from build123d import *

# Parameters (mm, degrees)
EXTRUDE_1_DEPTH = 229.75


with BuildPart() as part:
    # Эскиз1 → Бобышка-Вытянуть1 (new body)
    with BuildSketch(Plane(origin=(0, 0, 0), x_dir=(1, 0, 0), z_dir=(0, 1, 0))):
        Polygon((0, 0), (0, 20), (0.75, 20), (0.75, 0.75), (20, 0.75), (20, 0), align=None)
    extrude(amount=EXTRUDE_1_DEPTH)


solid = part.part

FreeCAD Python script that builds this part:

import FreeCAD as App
import Part
import Sketcher
Q = App.Units.Quantity


def add_polygon(sketch, points):
    """Adds a closed chain of lines whose ends are joined by coincident constraints."""
    first, n = sketch.GeometryCount, len(points)
    for a, b in zip(points, points[1:] + points[:1]):
        sketch.addGeometry(Part.LineSegment(App.Vector(*a, 0), App.Vector(*b, 0)), False)
    for i in range(n):
        sketch.addConstraint(Sketcher.Constraint("Coincident", first + i, 2, first + (i + 1) % n, 1))

doc = App.newDocument("Part")
body = doc.addObject("PartDesign::Body", "Body")

sketch1 = body.newObject("Sketcher::SketchObject", "Sketch")
sketch1.AttachmentSupport = (doc.getObject("XZ_Plane"), [""])
sketch1.MapMode = "FlatFace"
add_polygon(sketch1, [(0, -20), (0, 0), (20, 0), (20, -0.8), (0.8, -0.8), (0.8, -20)])
sketch1.addConstraint(Sketcher.Constraint("Vertical", 0))
sketch1.addConstraint(Sketcher.Constraint("Horizontal", 1))
sketch1.addConstraint(Sketcher.Constraint("Vertical", 2))
sketch1.addConstraint(Sketcher.Constraint("Horizontal", 3))
sketch1.addConstraint(Sketcher.Constraint("Vertical", 4))
sketch1.addConstraint(Sketcher.Constraint("Horizontal", 5))
sketch1.addConstraint(Sketcher.Constraint("Coincident", 0, 2, -1, 1))
sketch1.addConstraint(Sketcher.Constraint("Equal", 1, 0))
sketch1.addConstraint(Sketcher.Constraint("Equal", 5, 2))
sketch1.addConstraint(Sketcher.Constraint("DistanceX", 1, 1, 1, 2, Q("20 mm")))
sketch1.addConstraint(Sketcher.Constraint("DistanceX", 3, 2, 3, 1, Q("19.25 mm")))
pad1 = body.newObject("PartDesign::Pad", "Pad")
pad1.Profile = sketch1
pad1.Length = 229.75
pad1.Reversed = True

doc.recompute()
